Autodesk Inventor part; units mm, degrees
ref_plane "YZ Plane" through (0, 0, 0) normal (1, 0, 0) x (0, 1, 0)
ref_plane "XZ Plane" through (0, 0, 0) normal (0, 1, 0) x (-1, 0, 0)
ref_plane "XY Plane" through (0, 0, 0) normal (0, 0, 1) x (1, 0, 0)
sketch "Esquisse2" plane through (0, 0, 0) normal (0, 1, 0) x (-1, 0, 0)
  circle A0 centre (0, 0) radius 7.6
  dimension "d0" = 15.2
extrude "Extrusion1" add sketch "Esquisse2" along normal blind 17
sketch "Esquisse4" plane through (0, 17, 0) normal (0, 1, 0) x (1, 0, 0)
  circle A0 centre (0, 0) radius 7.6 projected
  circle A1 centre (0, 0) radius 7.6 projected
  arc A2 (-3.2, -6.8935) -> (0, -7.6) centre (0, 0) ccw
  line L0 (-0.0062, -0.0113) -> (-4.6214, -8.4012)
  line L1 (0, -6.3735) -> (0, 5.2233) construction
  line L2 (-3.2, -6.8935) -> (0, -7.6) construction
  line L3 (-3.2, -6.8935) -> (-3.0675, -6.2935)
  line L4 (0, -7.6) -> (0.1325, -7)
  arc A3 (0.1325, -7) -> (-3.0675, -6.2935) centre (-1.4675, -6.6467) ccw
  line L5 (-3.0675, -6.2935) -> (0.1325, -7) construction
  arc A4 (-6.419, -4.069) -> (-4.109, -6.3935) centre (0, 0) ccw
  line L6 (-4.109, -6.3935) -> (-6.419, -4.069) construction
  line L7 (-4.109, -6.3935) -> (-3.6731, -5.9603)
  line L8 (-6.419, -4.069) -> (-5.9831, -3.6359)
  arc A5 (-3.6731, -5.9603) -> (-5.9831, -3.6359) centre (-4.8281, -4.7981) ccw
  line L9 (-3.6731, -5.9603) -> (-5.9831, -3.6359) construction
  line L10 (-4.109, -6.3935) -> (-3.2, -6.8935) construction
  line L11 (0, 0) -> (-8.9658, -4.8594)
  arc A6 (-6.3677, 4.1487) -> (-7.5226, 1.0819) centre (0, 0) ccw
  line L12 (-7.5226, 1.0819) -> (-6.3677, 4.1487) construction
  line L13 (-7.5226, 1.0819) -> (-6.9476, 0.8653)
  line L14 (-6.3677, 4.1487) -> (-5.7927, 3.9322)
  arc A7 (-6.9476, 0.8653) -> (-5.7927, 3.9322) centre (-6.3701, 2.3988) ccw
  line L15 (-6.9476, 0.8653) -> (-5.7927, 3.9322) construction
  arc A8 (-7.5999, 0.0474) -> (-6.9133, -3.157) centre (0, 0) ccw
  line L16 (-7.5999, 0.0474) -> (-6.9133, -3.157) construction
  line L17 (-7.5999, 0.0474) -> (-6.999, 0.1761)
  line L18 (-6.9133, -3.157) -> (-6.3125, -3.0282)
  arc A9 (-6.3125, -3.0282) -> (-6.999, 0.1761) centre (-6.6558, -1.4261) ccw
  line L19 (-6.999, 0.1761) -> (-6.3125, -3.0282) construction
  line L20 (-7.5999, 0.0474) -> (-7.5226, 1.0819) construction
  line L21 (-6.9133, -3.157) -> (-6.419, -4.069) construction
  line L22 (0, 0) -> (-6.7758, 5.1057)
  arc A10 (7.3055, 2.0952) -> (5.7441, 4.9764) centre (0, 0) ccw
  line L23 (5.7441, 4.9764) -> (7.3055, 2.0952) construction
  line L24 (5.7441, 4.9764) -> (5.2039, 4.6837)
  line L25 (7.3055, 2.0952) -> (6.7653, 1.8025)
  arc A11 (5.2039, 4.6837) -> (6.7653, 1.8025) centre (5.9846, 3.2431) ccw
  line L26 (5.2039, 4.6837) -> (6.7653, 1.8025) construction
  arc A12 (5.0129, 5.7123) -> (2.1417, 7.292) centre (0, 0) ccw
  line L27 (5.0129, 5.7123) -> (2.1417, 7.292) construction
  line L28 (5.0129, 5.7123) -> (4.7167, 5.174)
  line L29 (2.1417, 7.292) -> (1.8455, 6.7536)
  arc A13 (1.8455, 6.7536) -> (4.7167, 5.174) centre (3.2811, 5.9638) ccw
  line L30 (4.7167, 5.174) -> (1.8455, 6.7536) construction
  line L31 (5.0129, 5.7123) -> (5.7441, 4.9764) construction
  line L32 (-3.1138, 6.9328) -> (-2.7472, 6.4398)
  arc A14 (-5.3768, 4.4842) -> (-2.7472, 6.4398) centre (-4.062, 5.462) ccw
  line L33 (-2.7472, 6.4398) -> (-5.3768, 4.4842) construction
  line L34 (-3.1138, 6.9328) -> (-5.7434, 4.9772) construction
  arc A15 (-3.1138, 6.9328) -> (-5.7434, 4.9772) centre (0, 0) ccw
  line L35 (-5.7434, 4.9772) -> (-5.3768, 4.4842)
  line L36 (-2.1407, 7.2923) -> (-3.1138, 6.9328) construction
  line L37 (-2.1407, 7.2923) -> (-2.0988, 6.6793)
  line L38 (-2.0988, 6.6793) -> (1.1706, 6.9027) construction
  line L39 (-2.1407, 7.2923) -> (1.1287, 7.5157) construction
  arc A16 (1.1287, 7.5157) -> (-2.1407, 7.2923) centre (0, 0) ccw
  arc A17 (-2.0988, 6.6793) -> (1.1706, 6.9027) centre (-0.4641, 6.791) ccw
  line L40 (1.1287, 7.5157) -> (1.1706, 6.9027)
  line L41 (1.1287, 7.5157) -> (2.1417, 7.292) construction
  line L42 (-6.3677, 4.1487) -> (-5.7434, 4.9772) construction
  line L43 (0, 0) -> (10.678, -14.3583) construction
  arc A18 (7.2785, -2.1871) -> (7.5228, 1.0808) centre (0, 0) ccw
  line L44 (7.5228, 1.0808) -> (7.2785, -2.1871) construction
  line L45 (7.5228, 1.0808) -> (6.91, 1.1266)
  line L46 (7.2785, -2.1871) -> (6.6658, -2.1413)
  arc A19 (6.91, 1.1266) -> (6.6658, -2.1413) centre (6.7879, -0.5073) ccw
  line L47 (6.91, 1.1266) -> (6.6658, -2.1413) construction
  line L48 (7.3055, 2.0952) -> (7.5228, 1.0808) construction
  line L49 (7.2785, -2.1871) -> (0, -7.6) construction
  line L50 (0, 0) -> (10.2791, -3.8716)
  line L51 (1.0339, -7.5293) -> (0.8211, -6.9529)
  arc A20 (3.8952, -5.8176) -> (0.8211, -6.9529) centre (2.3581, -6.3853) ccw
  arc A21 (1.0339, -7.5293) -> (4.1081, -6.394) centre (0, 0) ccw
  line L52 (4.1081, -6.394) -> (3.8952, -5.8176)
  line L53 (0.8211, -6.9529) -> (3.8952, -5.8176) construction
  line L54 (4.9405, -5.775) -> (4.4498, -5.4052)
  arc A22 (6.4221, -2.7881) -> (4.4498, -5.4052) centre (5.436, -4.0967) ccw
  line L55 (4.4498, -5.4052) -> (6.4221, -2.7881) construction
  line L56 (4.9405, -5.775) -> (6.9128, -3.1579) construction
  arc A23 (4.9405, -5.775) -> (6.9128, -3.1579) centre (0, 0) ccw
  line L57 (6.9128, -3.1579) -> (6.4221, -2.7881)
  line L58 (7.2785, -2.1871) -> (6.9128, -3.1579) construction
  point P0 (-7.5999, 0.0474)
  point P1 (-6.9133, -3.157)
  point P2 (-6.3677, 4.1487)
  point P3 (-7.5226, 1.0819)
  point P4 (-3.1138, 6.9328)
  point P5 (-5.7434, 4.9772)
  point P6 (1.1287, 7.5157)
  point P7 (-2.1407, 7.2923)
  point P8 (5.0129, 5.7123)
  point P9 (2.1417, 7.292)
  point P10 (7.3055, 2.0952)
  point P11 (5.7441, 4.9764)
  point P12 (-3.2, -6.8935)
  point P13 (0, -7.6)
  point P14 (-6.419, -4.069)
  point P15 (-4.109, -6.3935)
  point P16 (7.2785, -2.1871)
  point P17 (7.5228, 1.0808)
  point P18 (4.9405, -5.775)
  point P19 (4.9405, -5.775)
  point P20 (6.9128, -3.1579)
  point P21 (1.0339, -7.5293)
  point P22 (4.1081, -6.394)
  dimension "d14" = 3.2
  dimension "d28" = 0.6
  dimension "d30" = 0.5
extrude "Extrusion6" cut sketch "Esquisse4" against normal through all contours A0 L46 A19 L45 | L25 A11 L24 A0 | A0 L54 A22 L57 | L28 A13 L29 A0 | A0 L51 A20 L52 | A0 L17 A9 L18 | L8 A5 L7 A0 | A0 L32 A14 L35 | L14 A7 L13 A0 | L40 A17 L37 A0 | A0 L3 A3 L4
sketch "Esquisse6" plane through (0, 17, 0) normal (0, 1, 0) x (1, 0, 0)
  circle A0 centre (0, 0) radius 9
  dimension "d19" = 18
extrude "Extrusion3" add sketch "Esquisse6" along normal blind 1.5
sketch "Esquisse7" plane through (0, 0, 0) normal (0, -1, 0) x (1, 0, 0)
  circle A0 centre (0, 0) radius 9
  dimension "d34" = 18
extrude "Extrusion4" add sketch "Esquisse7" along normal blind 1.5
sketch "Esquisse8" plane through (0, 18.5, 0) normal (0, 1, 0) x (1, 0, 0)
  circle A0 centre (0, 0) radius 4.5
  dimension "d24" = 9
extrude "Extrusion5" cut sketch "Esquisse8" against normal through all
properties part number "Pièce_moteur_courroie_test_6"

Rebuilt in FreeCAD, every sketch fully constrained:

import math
import FreeCAD as App
import Part
import Sketcher

V = App.Vector
Q = App.Units.Quantity

doc = App.newDocument("Part")
body = doc.addObject("PartDesign::Body", "Body")

sketch1 = doc.addObject("Sketcher::SketchObject", "Sketch")
body.addObject(sketch1)
sketch1.AttachmentSupport = (doc.XZ_Plane, [""])
sketch1.MapMode = "FlatFace"
sketch1.addGeometry(Part.Circle(V(0, 0, 0), V(0, 0, 1), 7.6), False)
sketch1.addConstraint([
    Sketcher.Constraint("Coincident", 0, 3, -1, 1),
    Sketcher.Constraint("Diameter", 0, 15.2),
])
pad1 = doc.addObject("PartDesign::Pad", "Pad")
body.addObject(pad1)
pad1.Profile = sketch1
pad1.Length = 17
pad1.Reversed = True

sketch2 = doc.addObject("Sketcher::SketchObject", "Sketch001")
body.addObject(sketch2)
sketch2.AttachmentSupport = (doc.XZ_Plane, [""])
sketch2.MapMode = "FlatFace"
sketch2.AttachmentOffset = App.Placement(V(0, 0, -17), App.Rotation())
sketch2.addGeometry([
    Part.ArcOfCircle(Part.Circle(V(0, 0, 0), V(0, 0, 1), 7.6), math.radians(-8.175734), math.radians(16.724879)),
    Part.LineSegment(V(7.5228, -1.0808, 0), V(6.91, -1.1266, 0)),
    Part.ArcOfCircle(Part.Circle(V(6.7879, 0.5073, 0), V(0, 0, 1), 1.638456), math.radians(94.273462), math.radians(274.273723)),
    Part.LineSegment(V(6.6658, 2.1413, 0), V(7.2785, 2.1871, 0)),
    Part.LineSegment(V(6.7653, -1.8025, 0), V(7.3055, -2.0952, 0)),
    Part.ArcOfCircle(Part.Circle(V(0, 0, 0), V(0, 0, 1), 7.6), math.radians(-40.904014), math.radians(-16.002765)),
    Part.LineSegment(V(5.7441, -4.9764, 0), V(5.2039, -4.6837, 0)),
    Part.ArcOfCircle(Part.Circle(V(5.9846, -3.2431, 0), V(0, 0, 1), 1.638542), math.radians(61.545541), math.radians(241.545541)),
    Part.ArcOfCircle(Part.Circle(V(0, 0, 0), V(0, 0, 1), 7.6), math.radians(24.551832), math.radians(49.453084)),
    Part.LineSegment(V(6.9128, 3.1579, 0), V(6.4221, 2.7881, 0)),
    Part.ArcOfCircle(Part.Circle(V(5.436, 4.0967, 0), V(0, 0, 1), 1.638544), math.radians(127.004874), math.radians(306.999977)),
    Part.LineSegment(V(4.4498, 5.4052, 0), V(4.9405, 5.775, 0)),
    Part.LineSegment(V(4.7167, -5.174, 0), V(5.0129, -5.7123, 0)),
    Part.ArcOfCircle(Part.Circle(V(0, 0, 0), V(0, 0, 1), 7.6), math.radians(-73.6322), math.radians(-48.731027)),
    Part.LineSegment(V(2.1417, -7.292, 0), V(1.8455, -6.7536, 0)),
    Part.ArcOfCircle(Part.Circle(V(3.2811, -5.9638, 0), V(0, 0, 1), 1.638515), math.radians(28.817534), math.radians(208.817534)),
    Part.ArcOfCircle(Part.Circle(V(0, 0, 0), V(0, 0, 1), 7.6), math.radians(57.279541), math.radians(82.181221)),
    Part.LineSegment(V(4.1081, 6.394, 0), V(3.8952, 5.8176, 0)),
    Part.ArcOfCircle(Part.Circle(V(2.3581, 6.3853, 0), V(0, 0, 1), 1.638585), math.radians(159.731274), math.radians(339.729206)),
    Part.LineSegment(V(0.8211, 6.9529, 0), V(1.0339, 7.5293, 0)),
    Part.ArcOfCircle(Part.Circle(V(0, 0, 0), V(0, 0, 1), 7.6), math.radians(155.455905), math.radians(180.357345)),
    Part.LineSegment(V(-6.9133, 3.157, 0), V(-6.3125, 3.0282, 0)),
    Part.ArcOfCircle(Part.Circle(V(-6.6558, 1.4261, 0), V(0, 0, 1), 1.638469), math.radians(-102.090361), math.radians(77.905487)),
    Part.LineSegment(V(-6.999, -0.1761, 0), V(-7.5999, -0.0474, 0)),
    Part.LineSegment(V(-5.9831, 3.6359, 0), V(-6.419, 4.069, 0)),
    Part.ArcOfCircle(Part.Circle(V(0, 0, 0), V(0, 0, 1), 7.6), math.radians(122.728205), math.radians(147.629416)),
    Part.LineSegment(V(-4.109, 6.3935, 0), V(-3.6731, 5.9603, 0)),
    Part.ArcOfCircle(Part.Circle(V(-4.8281, 4.7981, 0), V(0, 0, 1), 1.638516), math.radians(-134.821971), math.radians(45.178029)),
    Part.ArcOfCircle(Part.Circle(V(0, 0, 0), V(0, 0, 1), 7.6), math.radians(-139.087972), math.radians(-114.186771)),
    Part.LineSegment(V(-5.7434, -4.9772, 0), V(-5.3768, -4.4842, 0)),
    Part.ArcOfCircle(Part.Circle(V(-4.062, -5.462, 0), V(0, 0, 1), 1.638533), math.radians(-36.637711), math.radians(143.362289)),
    Part.LineSegment(V(-2.7472, -6.4398, 0), V(-3.1138, -6.9328, 0)),
    Part.LineSegment(V(-5.7927, -3.9322, 0), V(-6.3677, -4.1487, 0)),
    Part.ArcOfCircle(Part.Circle(V(0, 0, 0), V(0, 0, 1), 7.6), math.radians(-171.815843), math.radians(-146.91485)),
    Part.LineSegment(V(-7.5226, -1.0819, 0), V(-6.9476, -0.8653, 0)),
    Part.ArcOfCircle(Part.Circle(V(-6.3701, -2.3988, 0), V(0, 0, 1), 1.638636), math.radians(-69.366193), math.radians(110.635847)),
    Part.LineSegment(V(1.1706, -6.9027, 0), V(1.1287, -7.5157, 0)),
    Part.ArcOfCircle(Part.Circle(V(0, 0, 0), V(0, 0, 1), 7.6), math.radians(-106.359929), math.radians(-81.459207)),
    Part.LineSegment(V(-2.1407, -7.2923, 0), V(-2.0988, -6.6793, 0)),
    Part.ArcOfCircle(Part.Circle(V(-0.4641, -6.791, 0), V(0, 0, 1), 1.638512), math.radians(-3.908978), math.radians(176.091022)),
    Part.ArcOfCircle(Part.Circle(V(0, 0, 0), V(0, 0, 1), 7.6), math.radians(90), math.radians(114.900984)),
    Part.LineSegment(V(0, 7.6, 0), V(0.1325, 7, 0)),
    Part.ArcOfCircle(Part.Circle(V(-1.4675, 6.6467, 0), V(0, 0, 1), 1.638542), math.radians(-167.5516), math.radians(12.451815)),
    Part.LineSegment(V(-3.0675, 6.2935, 0), V(-3.2, 6.8935, 0)),
], False)
sketch2.addConstraint([
    Sketcher.Constraint("Coincident", 0, 1, 1, 1),
    Sketcher.Constraint("Tangent", 1, 2, 2, 2),
    Sketcher.Constraint("Tangent", 2, 1, 3, 1),
    Sketcher.Constraint("Coincident", 3, 2, 0, 2),
    Sketcher.Constraint("Coincident", 4, 2, 5, 2),
    Sketcher.Constraint("Coincident", 5, 1, 6, 1),
    Sketcher.Constraint("Tangent", 6, 2, 7, 2),
    Sketcher.Constraint("Tangent", 7, 1, 4, 1),
    Sketcher.Constraint("Coincident", 8, 1, 9, 1),
    Sketcher.Constraint("Tangent", 9, 2, 10, 2),
    Sketcher.Constraint("Tangent", 10, 1, 11, 1),
    Sketcher.Constraint("Coincident", 11, 2, 8, 2),
    Sketcher.Constraint("Coincident", 12, 2, 13, 2),
    Sketcher.Constraint("Coincident", 13, 1, 14, 1),
    Sketcher.Constraint("Tangent", 14, 2, 15, 2),
    Sketcher.Constraint("Tangent", 15, 1, 12, 1),
    Sketcher.Constraint("Coincident", 16, 1, 17, 1),
    Sketcher.Constraint("Tangent", 17, 2, 18, 2),
    Sketcher.Constraint("Tangent", 18, 1, 19, 1),
    Sketcher.Constraint("Coincident", 19, 2, 16, 2),
    Sketcher.Constraint("Coincident", 20, 1, 21, 1),
    Sketcher.Constraint("Tangent", 21, 2, 22, 2),
    Sketcher.Constraint("Tangent", 22, 1, 23, 1),
    Sketcher.Constraint("Coincident", 23, 2, 20, 2),
    Sketcher.Constraint("Coincident", 24, 2, 25, 2),
    Sketcher.Constraint("Coincident", 25, 1, 26, 1),
    Sketcher.Constraint("Tangent", 26, 2, 27, 2),
    Sketcher.Constraint("Tangent", 27, 1, 24, 1),
    Sketcher.Constraint("Coincident", 28, 1, 29, 1),
    Sketcher.Constraint("Tangent", 29, 2, 30, 2),
    Sketcher.Constraint("Tangent", 30, 1, 31, 1),
    Sketcher.Constraint("Coincident", 31, 2, 28, 2),
    Sketcher.Constraint("Coincident", 32, 2, 33, 2),
    Sketcher.Constraint("Coincident", 33, 1, 34, 1),
    Sketcher.Constraint("Tangent", 34, 2, 35, 2),
    Sketcher.Constraint("Tangent", 35, 1, 32, 1),
    Sketcher.Constraint("Coincident", 36, 2, 37, 2),
    Sketcher.Constraint("Coincident", 37, 1, 38, 1),
    Sketcher.Constraint("Tangent", 38, 2, 39, 2),
    Sketcher.Constraint("Tangent", 39, 1, 36, 1),
    Sketcher.Constraint("Coincident", 40, 1, 41, 1),
    Sketcher.Constraint("Tangent", 41, 2, 42, 2),
    Sketcher.Constraint("Tangent", 42, 1, 43, 1),
    Sketcher.Constraint("Coincident", 43, 2, 40, 2),
    Sketcher.Constraint("Coincident", 0, 3, -1, 1),
    Sketcher.Constraint("Coincident", 5, 3, -1, 1),
    Sketcher.Constraint("Coincident", 8, 3, -1, 1),
    Sketcher.Constraint("Coincident", 13, 3, -1, 1),
    Sketcher.Constraint("Coincident", 16, 3, -1, 1),
    Sketcher.Constraint("Coincident", 20, 3, -1, 1),
    Sketcher.Constraint("Coincident", 25, 3, -1, 1),
    Sketcher.Constraint("Coincident", 28, 3, -1, 1),
    Sketcher.Constraint("Coincident", 33, 3, -1, 1),
    Sketcher.Constraint("Coincident", 37, 3, -1, 1),
    Sketcher.Constraint("Coincident", 40, 3, -1, 1),
    Sketcher.Constraint("Equal", 0, 5),
    Sketcher.Constraint("Equal", 2, 7),
    Sketcher.Constraint("Equal", 5, 8),
    Sketcher.Constraint("Equal", 7, 10),
    Sketcher.Constraint("Equal", 8, 13),
    Sketcher.Constraint("Equal", 10, 15),
    Sketcher.Constraint("Equal", 13, 16),
    Sketcher.Constraint("Equal", 15, 18),
    Sketcher.Constraint("Equal", 16, 20),
    Sketcher.Constraint("Equal", 18, 22),
    Sketcher.Constraint("Equal", 20, 25),
    Sketcher.Constraint("Equal", 22, 27),
    Sketcher.Constraint("Equal", 25, 28),
    Sketcher.Constraint("Equal", 27, 30),
    Sketcher.Constraint("Equal", 28, 33),
    Sketcher.Constraint("Equal", 30, 35),
    Sketcher.Constraint("Equal", 33, 37),
    Sketcher.Constraint("Equal", 35, 39),
    Sketcher.Constraint("Equal", 37, 40),
    Sketcher.Constraint("Equal", 39, 42),
    Sketcher.Constraint("PointOnObject", 40, 1, -2),
    Sketcher.Constraint("Parallel", 1, 3),
    Sketcher.Constraint("Parallel", 4, 6),
    Sketcher.Constraint("Parallel", 9, 11),
    Sketcher.Constraint("Parallel", 12, 14),
    Sketcher.Constraint("Parallel", 17, 19),
    Sketcher.Constraint("Parallel", 21, 23),
    Sketcher.Constraint("Parallel", 24, 26),
    Sketcher.Constraint("Parallel", 29, 31),
    Sketcher.Constraint("Parallel", 32, 34),
    Sketcher.Constraint("Parallel", 36, 38),
    Sketcher.Constraint("Parallel", 41, 43),
    Sketcher.Constraint("Equal", 1, 3),
    Sketcher.Constraint("Equal", 3, 4),
    Sketcher.Constraint("Equal", 4, 6),
    Sketcher.Constraint("Equal", 6, 9),
    Sketcher.Constraint("Equal", 9, 11),
    Sketcher.Constraint("Equal", 11, 12),
    Sketcher.Constraint("Equal", 12, 14),
    Sketcher.Constraint("Equal", 14, 17),
    Sketcher.Constraint("Equal", 17, 19),
    Sketcher.Constraint("Equal", 19, 21),
    Sketcher.Constraint("Equal", 21, 23),
    Sketcher.Constraint("Equal", 23, 24),
    Sketcher.Constraint("Equal", 24, 26),
    Sketcher.Constraint("Equal", 26, 29),
    Sketcher.Constraint("Equal", 29, 31),
    Sketcher.Constraint("Equal", 31, 32),
    Sketcher.Constraint("Equal", 32, 34),
    Sketcher.Constraint("Equal", 34, 36),
    Sketcher.Constraint("Equal", 36, 38),
    Sketcher.Constraint("Equal", 38, 41),
    Sketcher.Constraint("Equal", 41, 43),
    Sketcher.Constraint("DistanceX", 43, 2, -1, 1, 3.2),
    Sketcher.Constraint("Radius", 0, 7.6),
    Sketcher.Constraint("DistanceY", -1, 1, 41, 2, 7.0),
    Sketcher.Constraint("Angle", 21, Q("-12.1 deg")),
    Sketcher.Constraint("Angle", 4, Q("-28.4504 deg")),
    Sketcher.Constraint("Angle", 34, Q("20.6412 deg")),
    Sketcher.Constraint("Angle", 36, Q("-93.9102 deg")),
    Sketcher.Constraint("DistanceX", -1, 1, 1, 2, 6.91),
    Sketcher.Constraint("DistanceX", -1, 1, 10, 3, 5.436),
    Sketcher.Constraint("DistanceX", -1, 1, 15, 3, 3.281),
    Sketcher.Constraint("DistanceX", -1, 1, 18, 3, 2.358),
    Sketcher.Constraint("DistanceX", 27, 3, -1, 1, 4.828),
    Sketcher.Constraint("DistanceX", 30, 3, -1, 1, 4.062),
])
pocket1 = doc.addObject("PartDesign::Pocket", "Pocket")
body.addObject(pocket1)
pocket1.Profile = sketch2
pocket1.Type = "ThroughAll"
pocket1.Reversed = True

sketch3 = doc.addObject("Sketcher::SketchObject", "Sketch002")
body.addObject(sketch3)
sketch3.AttachmentSupport = (doc.XZ_Plane, [""])
sketch3.MapMode = "FlatFace"
sketch3.AttachmentOffset = App.Placement(V(0, 0, -17), App.Rotation())
sketch3.addGeometry(Part.Circle(V(0, 0, 0), V(0, 0, 1), 9), False)
sketch3.addConstraint([
    Sketcher.Constraint("Coincident", 0, 3, -1, 1),
    Sketcher.Constraint("Diameter", 0, 18.0),
])
pad2 = doc.addObject("PartDesign::Pad", "Pad001")
body.addObject(pad2)
pad2.Profile = sketch3
pad2.Length = 1.5
pad2.Reversed = True

sketch4 = doc.addObject("Sketcher::SketchObject", "Sketch003")
body.addObject(sketch4)
sketch4.AttachmentSupport = (doc.XZ_Plane, [""])
sketch4.MapMode = "FlatFace"
sketch4.addGeometry(Part.Circle(V(0, 0, 0), V(0, 0, 1), 9), False)
sketch4.addConstraint([
    Sketcher.Constraint("Coincident", 0, 3, -1, 1),
    Sketcher.Constraint("Diameter", 0, 18.0),
])
pad3 = doc.addObject("PartDesign::Pad", "Pad002")
body.addObject(pad3)
pad3.Profile = sketch4
pad3.Length = 1.5

sketch5 = doc.addObject("Sketcher::SketchObject", "Sketch004")
body.addObject(sketch5)
sketch5.AttachmentSupport = (doc.XZ_Plane, [""])
sketch5.MapMode = "FlatFace"
sketch5.AttachmentOffset = App.Placement(V(0, 0, -18.5), App.Rotation())
sketch5.addGeometry(Part.Circle(V(0, 0, 0), V(0, 0, 1), 4.5), False)
sketch5.addConstraint([
    Sketcher.Constraint("Coincident", 0, 3, -1, 1),
    Sketcher.Constraint("Diameter", 0, 9.0),
])
pocket2 = doc.addObject("PartDesign::Pocket", "Pocket001")
body.addObject(pocket2)
pocket2.Profile = sketch5
pocket2.Type = "ThroughAll"
pocket2.Reversed = True

doc.recompute()
